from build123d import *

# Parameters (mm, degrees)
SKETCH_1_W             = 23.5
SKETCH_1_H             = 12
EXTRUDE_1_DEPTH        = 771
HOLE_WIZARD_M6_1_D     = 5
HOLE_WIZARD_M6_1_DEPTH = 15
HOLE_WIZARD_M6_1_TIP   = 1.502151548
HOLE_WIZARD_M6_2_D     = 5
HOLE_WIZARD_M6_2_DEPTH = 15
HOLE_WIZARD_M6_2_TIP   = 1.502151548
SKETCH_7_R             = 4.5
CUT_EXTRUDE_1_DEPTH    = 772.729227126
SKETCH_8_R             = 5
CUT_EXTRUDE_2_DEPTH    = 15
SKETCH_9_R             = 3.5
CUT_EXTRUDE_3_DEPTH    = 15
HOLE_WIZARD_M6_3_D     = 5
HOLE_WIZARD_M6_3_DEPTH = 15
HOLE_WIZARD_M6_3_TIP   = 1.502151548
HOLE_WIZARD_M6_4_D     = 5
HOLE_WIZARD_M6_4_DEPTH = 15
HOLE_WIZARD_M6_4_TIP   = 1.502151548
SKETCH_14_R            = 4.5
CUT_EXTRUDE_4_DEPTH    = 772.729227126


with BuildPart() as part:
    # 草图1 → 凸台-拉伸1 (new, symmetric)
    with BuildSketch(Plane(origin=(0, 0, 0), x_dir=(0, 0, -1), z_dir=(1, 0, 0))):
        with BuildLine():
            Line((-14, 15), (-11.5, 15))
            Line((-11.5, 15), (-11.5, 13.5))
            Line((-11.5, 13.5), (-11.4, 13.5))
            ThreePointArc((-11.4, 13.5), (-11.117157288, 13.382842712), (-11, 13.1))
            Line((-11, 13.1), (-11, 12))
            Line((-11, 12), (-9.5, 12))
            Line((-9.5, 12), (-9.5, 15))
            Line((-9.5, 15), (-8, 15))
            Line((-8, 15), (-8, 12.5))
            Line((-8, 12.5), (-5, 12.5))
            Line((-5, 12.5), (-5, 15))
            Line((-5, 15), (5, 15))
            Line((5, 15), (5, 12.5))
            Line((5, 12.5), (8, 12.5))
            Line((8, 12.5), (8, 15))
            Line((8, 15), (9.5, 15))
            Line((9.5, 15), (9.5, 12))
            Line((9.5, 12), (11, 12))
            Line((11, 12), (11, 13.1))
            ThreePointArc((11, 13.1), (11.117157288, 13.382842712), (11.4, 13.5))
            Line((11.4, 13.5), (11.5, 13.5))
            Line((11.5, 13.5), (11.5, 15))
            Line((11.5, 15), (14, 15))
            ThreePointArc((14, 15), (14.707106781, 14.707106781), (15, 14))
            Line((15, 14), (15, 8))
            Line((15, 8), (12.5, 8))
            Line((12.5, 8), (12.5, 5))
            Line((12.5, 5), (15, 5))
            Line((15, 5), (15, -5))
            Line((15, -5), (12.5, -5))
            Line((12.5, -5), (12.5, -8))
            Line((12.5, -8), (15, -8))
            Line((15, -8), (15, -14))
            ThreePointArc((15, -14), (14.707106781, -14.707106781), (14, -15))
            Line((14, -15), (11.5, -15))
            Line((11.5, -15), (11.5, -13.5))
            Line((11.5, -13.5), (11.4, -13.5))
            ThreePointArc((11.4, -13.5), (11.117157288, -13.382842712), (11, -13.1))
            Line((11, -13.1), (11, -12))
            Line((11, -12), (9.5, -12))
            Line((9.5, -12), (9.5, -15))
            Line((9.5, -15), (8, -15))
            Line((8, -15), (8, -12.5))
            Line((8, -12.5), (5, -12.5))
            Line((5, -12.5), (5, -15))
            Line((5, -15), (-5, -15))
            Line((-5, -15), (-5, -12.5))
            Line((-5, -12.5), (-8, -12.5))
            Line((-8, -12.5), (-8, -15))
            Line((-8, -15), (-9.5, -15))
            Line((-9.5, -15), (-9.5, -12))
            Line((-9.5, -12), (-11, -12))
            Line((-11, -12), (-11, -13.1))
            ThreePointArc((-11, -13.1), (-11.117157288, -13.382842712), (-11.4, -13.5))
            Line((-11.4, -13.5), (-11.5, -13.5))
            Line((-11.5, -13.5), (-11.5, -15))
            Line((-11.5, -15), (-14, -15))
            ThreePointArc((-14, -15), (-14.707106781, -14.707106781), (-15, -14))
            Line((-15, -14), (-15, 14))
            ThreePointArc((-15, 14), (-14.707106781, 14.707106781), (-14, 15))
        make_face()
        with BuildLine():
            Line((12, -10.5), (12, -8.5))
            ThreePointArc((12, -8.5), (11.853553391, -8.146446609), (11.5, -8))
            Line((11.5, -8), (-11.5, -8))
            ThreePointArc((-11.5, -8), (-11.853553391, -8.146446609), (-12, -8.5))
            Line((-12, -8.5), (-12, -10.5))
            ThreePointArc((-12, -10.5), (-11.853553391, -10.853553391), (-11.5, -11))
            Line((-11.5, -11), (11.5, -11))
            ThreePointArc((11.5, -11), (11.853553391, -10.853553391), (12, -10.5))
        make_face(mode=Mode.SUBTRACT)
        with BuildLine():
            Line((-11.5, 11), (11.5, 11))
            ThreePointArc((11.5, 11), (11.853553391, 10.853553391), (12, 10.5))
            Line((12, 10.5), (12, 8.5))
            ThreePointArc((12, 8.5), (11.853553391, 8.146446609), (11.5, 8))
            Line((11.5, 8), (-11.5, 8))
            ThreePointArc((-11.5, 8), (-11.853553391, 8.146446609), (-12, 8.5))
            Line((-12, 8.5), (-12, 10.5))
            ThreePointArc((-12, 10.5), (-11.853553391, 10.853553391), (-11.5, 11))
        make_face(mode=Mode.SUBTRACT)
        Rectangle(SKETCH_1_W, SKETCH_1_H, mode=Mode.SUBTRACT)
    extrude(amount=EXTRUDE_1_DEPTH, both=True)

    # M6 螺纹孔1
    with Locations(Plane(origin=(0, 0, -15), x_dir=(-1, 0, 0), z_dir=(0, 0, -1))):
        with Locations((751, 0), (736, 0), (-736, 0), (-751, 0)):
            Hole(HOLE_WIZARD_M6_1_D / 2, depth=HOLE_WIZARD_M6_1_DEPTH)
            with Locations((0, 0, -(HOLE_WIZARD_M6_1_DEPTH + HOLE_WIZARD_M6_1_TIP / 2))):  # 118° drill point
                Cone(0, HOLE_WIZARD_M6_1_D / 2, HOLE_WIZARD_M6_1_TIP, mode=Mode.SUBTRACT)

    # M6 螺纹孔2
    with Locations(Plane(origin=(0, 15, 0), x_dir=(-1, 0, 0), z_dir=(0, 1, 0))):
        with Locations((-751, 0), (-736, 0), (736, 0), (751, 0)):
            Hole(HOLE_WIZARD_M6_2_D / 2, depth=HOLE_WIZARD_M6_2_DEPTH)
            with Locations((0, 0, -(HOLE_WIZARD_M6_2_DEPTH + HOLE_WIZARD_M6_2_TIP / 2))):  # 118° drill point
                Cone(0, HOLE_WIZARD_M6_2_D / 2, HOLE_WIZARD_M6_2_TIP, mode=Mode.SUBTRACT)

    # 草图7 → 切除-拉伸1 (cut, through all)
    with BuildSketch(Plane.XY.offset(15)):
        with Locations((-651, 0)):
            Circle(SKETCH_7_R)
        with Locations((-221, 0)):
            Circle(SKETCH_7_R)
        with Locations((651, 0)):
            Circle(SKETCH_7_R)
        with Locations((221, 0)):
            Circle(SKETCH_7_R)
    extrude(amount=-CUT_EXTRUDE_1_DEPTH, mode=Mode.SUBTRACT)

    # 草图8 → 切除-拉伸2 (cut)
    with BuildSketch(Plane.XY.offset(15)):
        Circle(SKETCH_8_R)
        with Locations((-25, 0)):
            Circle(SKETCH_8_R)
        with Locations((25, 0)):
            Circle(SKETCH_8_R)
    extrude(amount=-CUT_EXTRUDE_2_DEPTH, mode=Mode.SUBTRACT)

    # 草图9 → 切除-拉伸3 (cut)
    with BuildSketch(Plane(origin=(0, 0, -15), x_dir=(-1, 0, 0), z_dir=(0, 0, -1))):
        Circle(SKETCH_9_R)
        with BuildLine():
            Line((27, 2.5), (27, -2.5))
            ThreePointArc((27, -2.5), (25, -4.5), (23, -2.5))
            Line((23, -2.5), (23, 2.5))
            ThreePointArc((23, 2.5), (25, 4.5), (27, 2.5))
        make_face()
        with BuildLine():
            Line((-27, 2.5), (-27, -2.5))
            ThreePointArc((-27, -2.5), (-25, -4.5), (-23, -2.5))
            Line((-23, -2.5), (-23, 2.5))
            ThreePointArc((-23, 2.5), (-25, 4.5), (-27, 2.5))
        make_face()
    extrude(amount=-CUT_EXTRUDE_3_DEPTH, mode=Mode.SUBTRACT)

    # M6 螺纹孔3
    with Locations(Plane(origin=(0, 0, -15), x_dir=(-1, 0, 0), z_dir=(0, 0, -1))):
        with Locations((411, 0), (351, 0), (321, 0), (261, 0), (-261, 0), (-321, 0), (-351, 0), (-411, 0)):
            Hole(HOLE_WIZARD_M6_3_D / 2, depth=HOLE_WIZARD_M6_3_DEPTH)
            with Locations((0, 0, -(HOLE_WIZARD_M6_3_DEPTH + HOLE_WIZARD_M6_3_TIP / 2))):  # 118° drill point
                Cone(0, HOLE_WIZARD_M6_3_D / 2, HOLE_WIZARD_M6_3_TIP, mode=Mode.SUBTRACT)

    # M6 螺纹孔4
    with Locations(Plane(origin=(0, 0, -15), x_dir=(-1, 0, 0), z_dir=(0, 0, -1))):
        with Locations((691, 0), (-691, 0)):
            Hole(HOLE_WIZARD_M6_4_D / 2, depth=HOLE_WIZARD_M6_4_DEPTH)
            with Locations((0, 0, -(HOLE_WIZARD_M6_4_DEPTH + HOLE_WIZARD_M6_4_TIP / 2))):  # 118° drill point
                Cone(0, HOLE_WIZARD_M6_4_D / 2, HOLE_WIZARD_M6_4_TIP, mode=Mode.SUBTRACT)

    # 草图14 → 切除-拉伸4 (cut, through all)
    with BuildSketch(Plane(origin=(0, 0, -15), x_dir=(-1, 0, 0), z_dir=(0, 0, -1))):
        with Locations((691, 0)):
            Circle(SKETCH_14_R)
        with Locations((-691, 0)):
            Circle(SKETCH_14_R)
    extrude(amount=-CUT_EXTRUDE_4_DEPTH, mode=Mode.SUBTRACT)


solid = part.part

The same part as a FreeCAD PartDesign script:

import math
import FreeCAD as App
import Part
import Sketcher


def add_polygon(sketch, points):
    """Adds a closed chain of lines whose ends are joined by coincident constraints."""
    first, n = sketch.GeometryCount, len(points)
    for a, b in zip(points, points[1:] + points[:1]):
        sketch.addGeometry(Part.LineSegment(App.Vector(*a, 0), App.Vector(*b, 0)), False)
    for i in range(n):
        sketch.addConstraint(Sketcher.Constraint("Coincident", first + i, 2, first + (i + 1) % n, 1))

doc = App.newDocument("Part")
body = doc.addObject("PartDesign::Body", "Body")

sketch1 = doc.addObject("Sketcher::SketchObject", "Sketch")
body.addObject(sketch1)
sketch1.AttachmentSupport = (doc.YZ_Plane, [""])
sketch1.MapMode = "FlatFace"
sketch1.addGeometry(Part.LineSegment(App.Vector(15, 11.5, 0), App.Vector(15, 14, 0)), False)
sketch1.addGeometry(Part.ArcOfCircle(Part.Circle(App.Vector(14, 14, 0), App.Vector(0, 0, 1), 1), math.radians(0), math.radians(90)), False)
sketch1.addGeometry(Part.LineSegment(App.Vector(14, 15, 0), App.Vector(-14, 15, 0)), False)
sketch1.addGeometry(Part.ArcOfCircle(Part.Circle(App.Vector(-14, 14, 0), App.Vector(0, 0, 1), 1), math.radians(90), math.radians(180)), False)
sketch1.addGeometry(Part.LineSegment(App.Vector(-15, 14, 0), App.Vector(-15, 11.5, 0)), False)
sketch1.addGeometry(Part.LineSegment(App.Vector(-15, 11.5, 0), App.Vector(-13.5, 11.5, 0)), False)
sketch1.addGeometry(Part.LineSegment(App.Vector(-13.5, 11.5, 0), App.Vector(-13.5, 11.4, 0)), False)
sketch1.addGeometry(Part.ArcOfCircle(Part.Circle(App.Vector(-13.1, 11.4, 0), App.Vector(0, 0, 1), 0.4), math.radians(-180), math.radians(-90)), False)
sketch1.addGeometry(Part.LineSegment(App.Vector(-13.1, 11, 0), App.Vector(-12, 11, 0)), False)
sketch1.addGeometry(Part.LineSegment(App.Vector(-12, 11, 0), App.Vector(-12, 9.5, 0)), False)
sketch1.addGeometry(Part.LineSegment(App.Vector(-12, 9.5, 0), App.Vector(-15, 9.5, 0)), False)
sketch1.addGeometry(Part.LineSegment(App.Vector(-15, 9.5, 0), App.Vector(-15, 8, 0)), False)
sketch1.addGeometry(Part.LineSegment(App.Vector(-15, 8, 0), App.Vector(-12.5, 8, 0)), False)
sketch1.addGeometry(Part.LineSegment(App.Vector(-12.5, 8, 0), App.Vector(-12.5, 5, 0)), False)
sketch1.addGeometry(Part.LineSegment(App.Vector(-12.5, 5, 0), App.Vector(-15, 5, 0)), False)
sketch1.addGeometry(Part.LineSegment(App.Vector(-15, 5, 0), App.Vector(-15, -5, 0)), False)
sketch1.addGeometry(Part.LineSegment(App.Vector(-15, -5, 0), App.Vector(-12.5, -5, 0)), False)
sketch1.addGeometry(Part.LineSegment(App.Vector(-12.5, -5, 0), App.Vector(-12.5, -8, 0)), False)
sketch1.addGeometry(Part.LineSegment(App.Vector(-12.5, -8, 0), App.Vector(-15, -8, 0)), False)
sketch1.addGeometry(Part.LineSegment(App.Vector(-15, -8, 0), App.Vector(-15, -9.5, 0)), False)
sketch1.addGeometry(Part.LineSegment(App.Vector(-15, -9.5, 0), App.Vector(-12, -9.5, 0)), False)
sketch1.addGeometry(Part.LineSegment(App.Vector(-12, -9.5, 0), App.Vector(-12, -11, 0)), False)
sketch1.addGeometry(Part.LineSegment(App.Vector(-12, -11, 0), App.Vector(-13.1, -11, 0)), False)
sketch1.addGeometry(Part.ArcOfCircle(Part.Circle(App.Vector(-13.1, -11.4, 0), App.Vector(0, 0, 1), 0.4), math.radians(90), math.radians(180)), False)
sketch1.addGeometry(Part.LineSegment(App.Vector(-13.5, -11.4, 0), App.Vector(-13.5, -11.5, 0)), False)
sketch1.addGeometry(Part.LineSegment(App.Vector(-13.5, -11.5, 0), App.Vector(-15, -11.5, 0)), False)
sketch1.addGeometry(Part.LineSegment(App.Vector(-15, -11.5, 0), App.Vector(-15, -14, 0)), False)
sketch1.addGeometry(Part.ArcOfCircle(Part.Circle(App.Vector(-14, -14, 0), App.Vector(0, 0, 1), 1), math.radians(-180), math.radians(-90)), False)
sketch1.addGeometry(Part.LineSegment(App.Vector(-14, -15, 0), App.Vector(-8, -15, 0)), False)
sketch1.addGeometry(Part.LineSegment(App.Vector(-8, -15, 0), App.Vector(-8, -12.5, 0)), False)
sketch1.addGeometry(Part.LineSegment(App.Vector(-8, -12.5, 0), App.Vector(-5, -12.5, 0)), False)
sketch1.addGeometry(Part.LineSegment(App.Vector(-5, -12.5, 0), App.Vector(-5, -15, 0)), False)
sketch1.addGeometry(Part.LineSegment(App.Vector(-5, -15, 0), App.Vector(5, -15, 0)), False)
sketch1.addGeometry(Part.LineSegment(App.Vector(5, -15, 0), App.Vector(5, -12.5, 0)), False)
sketch1.addGeometry(Part.LineSegment(App.Vector(5, -12.5, 0), App.Vector(8, -12.5, 0)), False)
sketch1.addGeometry(Part.LineSegment(App.Vector(8, -12.5, 0), App.Vector(8, -15, 0)), False)
sketch1.addGeometry(Part.LineSegment(App.Vector(8, -15, 0), App.Vector(14, -15, 0)), False)
sketch1.addGeometry(Part.ArcOfCircle(Part.Circle(App.Vector(14, -14, 0), App.Vector(0, 0, 1), 1), math.radians(-90), math.radians(0)), False)
sketch1.addGeometry(Part.LineSegment(App.Vector(15, -14, 0), App.Vector(15, -11.5, 0)), False)
sketch1.addGeometry(Part.LineSegment(App.Vector(15, -11.5, 0), App.Vector(13.5, -11.5, 0)), False)
sketch1.addGeometry(Part.LineSegment(App.Vector(13.5, -11.5, 0), App.Vector(13.5, -11.4, 0)), False)
sketch1.addGeometry(Part.ArcOfCircle(Part.Circle(App.Vector(13.1, -11.4, 0), App.Vector(0, 0, 1), 0.4), math.radians(0), math.radians(90)), False)
sketch1.addGeometry(Part.LineSegment(App.Vector(13.1, -11, 0), App.Vector(12, -11, 0)), False)
sketch1.addGeometry(Part.LineSegment(App.Vector(12, -11, 0), App.Vector(12, -9.5, 0)), False)
sketch1.addGeometry(Part.LineSegment(App.Vector(12, -9.5, 0), App.Vector(15, -9.5, 0)), False)
sketch1.addGeometry(Part.LineSegment(App.Vector(15, -9.5, 0), App.Vector(15, -8, 0)), False)
sketch1.addGeometry(Part.LineSegment(App.Vector(15, -8, 0), App.Vector(12.5, -8, 0)), False)
sketch1.addGeometry(Part.LineSegment(App.Vector(12.5, -8, 0), App.Vector(12.5, -5, 0)), False)
sketch1.addGeometry(Part.LineSegment(App.Vector(12.5, -5, 0), App.Vector(15, -5, 0)), False)
sketch1.addGeometry(Part.LineSegment(App.Vector(15, -5, 0), App.Vector(15, 5, 0)), False)
sketch1.addGeometry(Part.LineSegment(App.Vector(15, 5, 0), App.Vector(12.5, 5, 0)), False)
sketch1.addGeometry(Part.LineSegment(App.Vector(12.5, 5, 0), App.Vector(12.5, 8, 0)), False)
sketch1.addGeometry(Part.LineSegment(App.Vector(12.5, 8, 0), App.Vector(15, 8, 0)), False)
sketch1.addGeometry(Part.LineSegment(App.Vector(15, 8, 0), App.Vector(15, 9.5, 0)), False)
sketch1.addGeometry(Part.LineSegment(App.Vector(15, 9.5, 0), App.Vector(12, 9.5, 0)), False)
sketch1.addGeometry(Part.LineSegment(App.Vector(12, 9.5, 0), App.Vector(12, 11, 0)), False)
sketch1.addGeometry(Part.LineSegment(App.Vector(12, 11, 0), App.Vector(13.1, 11, 0)), False)
sketch1.addGeometry(Part.ArcOfCircle(Part.Circle(App.Vector(13.1, 11.4, 0), App.Vector(0, 0, 1), 0.4), math.radians(-90), math.radians(0)), False)
sketch1.addGeometry(Part.LineSegment(App.Vector(13.5, 11.4, 0), App.Vector(13.5, 11.5, 0)), False)
sketch1.addGeometry(Part.LineSegment(App.Vector(13.5, 11.5, 0), App.Vector(15, 11.5, 0)), False)
sketch1.addGeometry(Part.ArcOfCircle(Part.Circle(App.Vector(-10.5, -11.5, 0), App.Vector(0, 0, 1), 0.5), math.radians(180), math.radians(270)), False)
sketch1.addGeometry(Part.LineSegment(App.Vector(-11, -11.5, 0), App.Vector(-11, 11.5, 0)), False)
sketch1.addGeometry(Part.ArcOfCircle(Part.Circle(App.Vector(-10.5, 11.5, 0), App.Vector(0, 0, 1), 0.5), math.radians(90), math.radians(180)), False)
sketch1.addGeometry(Part.LineSegment(App.Vector(-10.5, 12, 0), App.Vector(-8.5, 12, 0)), False)
sketch1.addGeometry(Part.ArcOfCircle(Part.Circle(App.Vector(-8.5, 11.5, 0), App.Vector(0, 0, 1), 0.5), math.radians(0), math.radians(90)), False)
sketch1.addGeometry(Part.LineSegment(App.Vector(-8, 11.5, 0), App.Vector(-8, -11.5, 0)), False)
sketch1.addGeometry(Part.ArcOfCircle(Part.Circle(App.Vector(-8.5, -11.5, 0), App.Vector(0, 0, 1), 0.5), math.radians(-90), math.radians(0)), False)
sketch1.addGeometry(Part.LineSegment(App.Vector(-8.5, -12, 0), App.Vector(-10.5, -12, 0)), False)
add_polygon(sketch1, [(-6, 11.75), (6, 11.75), (6, -11.75), (-6, -11.75)])
sketch1.addGeometry(Part.LineSegment(App.Vector(11, 11.5, 0), App.Vector(11, -11.5, 0)), False)
sketch1.addGeometry(Part.ArcOfCircle(Part.Circle(App.Vector(10.5, -11.5, 0), App.Vector(0, 0, 1), 0.5), math.radians(-90), math.radians(0)), False)
sketch1.addGeometry(Part.LineSegment(App.Vector(10.5, -12, 0), App.Vector(8.5, -12, 0)), False)
sketch1.addGeometry(Part.ArcOfCircle(Part.Circle(App.Vector(8.5, -11.5, 0), App.Vector(0, 0, 1), 0.5), math.radians(180), math.radians(270)), False)
sketch1.addGeometry(Part.LineSegment(App.Vector(8, -11.5, 0), App.Vector(8, 11.5, 0)), False)
sketch1.addGeometry(Part.ArcOfCircle(Part.Circle(App.Vector(8.5, 11.5, 0), App.Vector(0, 0, 1), 0.5), math.radians(90), math.radians(180)), False)
sketch1.addGeometry(Part.LineSegment(App.Vector(8.5, 12, 0), App.Vector(10.5, 12, 0)), False)
sketch1.addGeometry(Part.ArcOfCircle(Part.Circle(App.Vector(10.5, 11.5, 0), App.Vector(0, 0, 1), 0.5), math.radians(0), math.radians(90)), False)
sketch1.addConstraint([
    Sketcher.Constraint("Tangent", 0, 2, 1, 1),
    Sketcher.Constraint("Tangent", 1, 2, 2, 1),
    Sketcher.Constraint("Tangent", 2, 2, 3, 1),
    Sketcher.Constraint("Tangent", 3, 2, 4, 1),
    Sketcher.Constraint("Coincident", 4, 2, 5, 1),
    Sketcher.Constraint("Coincident", 5, 2, 6, 1),
    Sketcher.Constraint("Tangent", 6, 2, 7, 1),
    Sketcher.Constraint("Tangent", 7, 2, 8, 1),
    Sketcher.Constraint("Coincident", 8, 2, 9, 1),
    Sketcher.Constraint("Coincident", 9, 2, 10, 1),
    Sketcher.Constraint("Coincident", 10, 2, 11, 1),
    Sketcher.Constraint("Coincident", 11, 2, 12, 1),
    Sketcher.Constraint("Coincident", 12, 2, 13, 1),
    Sketcher.Constraint("Coincident", 13, 2, 14, 1),
    Sketcher.Constraint("Coincident", 14, 2, 15, 1),
    Sketcher.Constraint("Coincident", 15, 2, 16, 1),
    Sketcher.Constraint("Coincident", 16, 2, 17, 1),
    Sketcher.Constraint("Coincident", 17, 2, 18, 1),
    Sketcher.Constraint("Coincident", 18, 2, 19, 1),
    Sketcher.Constraint("Coincident", 19, 2, 20, 1),
    Sketcher.Constraint("Coincident", 20, 2, 21, 1),
    Sketcher.Constraint("Coincident", 21, 2, 22, 1),
    Sketcher.Constraint("Tangent", 22, 2, 23, 1),
    Sketcher.Constraint("Tangent", 23, 2, 24, 1),
    Sketcher.Constraint("Coincident", 24, 2, 25, 1),
    Sketcher.Constraint("Coincident", 25, 2, 26, 1),
    Sketcher.Constraint("Tangent", 26, 2, 27, 1),
    Sketcher.Constraint("Tangent", 27, 2, 28, 1),
    Sketcher.Constraint("Coincident", 28, 2, 29, 1),
    Sketcher.Constraint("Coincident", 29, 2, 30, 1),
    Sketcher.Constraint("Coincident", 30, 2, 31, 1),
    Sketcher.Constraint("Coincident", 31, 2, 32, 1),
    Sketcher.Constraint("Coincident", 32, 2, 33, 1),
    Sketcher.Constraint("Coincident", 33, 2, 34, 1),
    Sketcher.Constraint("Coincident", 34, 2, 35, 1),
    Sketcher.Constraint("Coincident", 35, 2, 36, 1),
    Sketcher.Constraint("Tangent", 36, 2, 37, 1),
    Sketcher.Constraint("Tangent", 37, 2, 38, 1),
    Sketcher.Constraint("Coincident", 38, 2, 39, 1),
    Sketcher.Constraint("Coincident", 39, 2, 40, 1),
    Sketcher.Constraint("Tangent", 40, 2, 41, 1),
    Sketcher.Constraint("Tangent", 41, 2, 42, 1),
    Sketcher.Constraint("Coincident", 42, 2, 43, 1),
    Sketcher.Constraint("Coincident", 43, 2, 44, 1),
    Sketcher.Constraint("Coincident", 44, 2, 45, 1),
    Sketcher.Constraint("Coincident", 45, 2, 46, 1),
    Sketcher.Constraint("Coincident", 46, 2, 47, 1),
    Sketcher.Constraint("Coincident", 47, 2, 48, 1),
    Sketcher.Constraint("Coincident", 48, 2, 49, 1),
    Sketcher.Constraint("Coincident", 49, 2, 50, 1),
    Sketcher.Constraint("Coincident", 50, 2, 51, 1),
    Sketcher.Constraint("Coincident", 51, 2, 52, 1),
    Sketcher.Constraint("Coincident", 52, 2, 53, 1),
    Sketcher.Constraint("Coincident", 53, 2, 54, 1),
    Sketcher.Constraint("Coincident", 54, 2, 55, 1),
    Sketcher.Constraint("Coincident", 55, 2, 56, 1),
    Sketcher.Constraint("Tangent", 56, 2, 57, 1),
    Sketcher.Constraint("Tangent", 57, 2, 58, 1),
    Sketcher.Constraint("Coincident", 58, 2, 59, 1),
    Sketcher.Constraint("Coincident", 59, 2, 0, 1),
    Sketcher.Constraint("Tangent", 60, 1, 61, 1),
    Sketcher.Constraint("Tangent", 61, 2, 62, 2),
    Sketcher.Constraint("Tangent", 62, 1, 63, 1),
    Sketcher.Constraint("Tangent", 63, 2, 64, 2),
    Sketcher.Constraint("Tangent", 64, 1, 65, 1),
    Sketcher.Constraint("Tangent", 65, 2, 66, 2),
    Sketcher.Constraint("Tangent", 66, 1, 67, 1),
    Sketcher.Constraint("Tangent", 67, 2, 60, 2),
    Sketcher.Constraint("Tangent", 72, 2, 73, 2),
    Sketcher.Constraint("Tangent", 73, 1, 74, 1),
    Sketcher.Constraint("Tangent", 74, 2, 75, 2),
    Sketcher.Constraint("Tangent", 75, 1, 76, 1),
    Sketcher.Constraint("Tangent", 76, 2, 77, 2),
    Sketcher.Constraint("Tangent", 77, 1, 78, 1),
    Sketcher.Constraint("Tangent", 78, 2, 79, 2),
    Sketcher.Constraint("Tangent", 79, 1, 72, 1),
    Sketcher.Constraint("Vertical", 0),
    Sketcher.Constraint("Horizontal", 2),
    Sketcher.Constraint("Vertical", 4),
    Sketcher.Constraint("Horizontal", 5),
    Sketcher.Constraint("Vertical", 6),
    Sketcher.Constraint("Horizontal", 8),
    Sketcher.Constraint("Vertical", 9),
    Sketcher.Constraint("Horizontal", 10),
    Sketcher.Constraint("Vertical", 11),
    Sketcher.Constraint("Horizontal", 12),
    Sketcher.Constraint("Vertical", 13),
    Sketcher.Constraint("Horizontal", 14),
    Sketcher.Constraint("Vertical", 15),
    Sketcher.Constraint("Horizontal", 16),
    Sketcher.Constraint("Vertical", 17),
    Sketcher.Constraint("Horizontal", 18),
    Sketcher.Constraint("Vertical", 19),
    Sketcher.Constraint("Horizontal", 20),
    Sketcher.Constraint("Vertical", 21),
    Sketcher.Constraint("Horizontal", 22),
    Sketcher.Constraint("Vertical", 24),
    Sketcher.Constraint("Horizontal", 25),
    Sketcher.Constraint("Vertical", 26),
    Sketcher.Constraint("Horizontal", 28),
    Sketcher.Constraint("Vertical", 29),
    Sketcher.Constraint("Horizontal", 30),
    Sketcher.Constraint("Vertical", 31),
    Sketcher.Constraint("Horizontal", 32),
    Sketcher.Constraint("Vertical", 33),
    Sketcher.Constraint("Horizontal", 34),
    Sketcher.Constraint("Vertical", 35),
    Sketcher.Constraint("Horizontal", 36),
    Sketcher.Constraint("Vertical", 38),
    Sketcher.Constraint("Horizontal", 39),
    Sketcher.Constraint("Vertical", 40),
    Sketcher.Constraint("Horizontal", 42),
    Sketcher.Constraint("Vertical", 43),
    Sketcher.Constraint("Horizontal", 44),
    Sketcher.Constraint("Vertical", 45),
    Sketcher.Constraint("Horizontal", 46),
    Sketcher.Constraint("Vertical", 47),
    Sketcher.Constraint("Horizontal", 48),
    Sketcher.Constraint("Vertical", 49),
    Sketcher.Constraint("Horizontal", 50),
    Sketcher.Constraint("Vertical", 51),
    Sketcher.Constraint("Horizontal", 52),
    Sketcher.Constraint("Vertical", 53),
    Sketcher.Constraint("Horizontal", 54),
    Sketcher.Constraint("Vertical", 55),
    Sketcher.Constraint("Horizontal", 56),
    Sketcher.Constraint("Vertical", 58),
    Sketcher.Constraint("Horizontal", 59),
    Sketcher.Constraint("Vertical", 61),
    Sketcher.Constraint("Horizontal", 63),
    Sketcher.Constraint("Vertical", 65),
    Sketcher.Constraint("Horizontal", 67),
    Sketcher.Constraint("Horizontal", 68),
    Sketcher.Constraint("Vertical", 69),
    Sketcher.Constraint("Horizontal", 70),
    Sketcher.Constraint("Vertical", 71),
    Sketcher.Constraint("Vertical", 72),
    Sketcher.Constraint("Horizontal", 74),
    Sketcher.Constraint("Vertical", 76),
    Sketcher.Constraint("Horizontal", 78),
    Sketcher.Constraint("Equal", 1, 3),
    Sketcher.Constraint("Equal", 7, 23),
    Sketcher.Constraint("Equal", 3, 27),
    Sketcher.Constraint("Equal", 27, 37),
    Sketcher.Constraint("Equal", 23, 41),
    Sketcher.Constraint("Equal", 41, 57),
    Sketcher.Constraint("Equal", 60, 62),
    Sketcher.Constraint("Equal", 62, 64),
    Sketcher.Constraint("Equal", 64, 66),
    Sketcher.Constraint("Equal", 66, 73),
    Sketcher.Constraint("Equal", 73, 75),
    Sketcher.Constraint("Equal", 75, 77),
    Sketcher.Constraint("Equal", 77, 79),
    Sketcher.Constraint("Symmetric", 1, 3, 27, 3, -1, 1),
    Sketcher.Constraint("Symmetric", 3, 3, 37, 3, -1, 1),
    Sketcher.Constraint("Symmetric", 7, 3, 41, 3, -1, 1),
    Sketcher.Constraint("Symmetric", 23, 3, 57, 3, -1, 1),
    Sketcher.Constraint("Symmetric", 62, 3, 73, 3, -1, 1),
    Sketcher.Constraint("Symmetric", 66, 3, 77, 3, -1, 1),
    Sketcher.Constraint("Symmetric", 9, 2, 43, 2, -1, 1),
    Sketcher.Constraint("Symmetric", 11, 2, 45, 2, -1, 1),
    Sketcher.Constraint("Symmetric", 13, 2, 47, 2, -1, 1),
    Sketcher.Constraint("Symmetric", 15, 2, 49, 2, -1, 1),
    Sketcher.Constraint("Symmetric", 17, 2, 51, 2, -1, 1),
    Sketcher.Constraint("Symmetric", 19, 2, 53, 2, -1, 1),
    Sketcher.Constraint("Symmetric", 68, 2, 70, 2, -1, 1),
    Sketcher.Constraint("Symmetric", 23, 3, 41, 3, -2),
    Sketcher.Constraint("Symmetric", 30, 2, 33, 2, -2),
    Sketcher.Constraint("Symmetric", 25, 2, 38, 2, -2),
    Sketcher.Constraint("Symmetric", 20, 2, 43, 2, -2),
    Sketcher.Constraint("Symmetric", 18, 2, 45, 2, -2),
    Sketcher.Constraint("Symmetric", 16, 2, 47, 2, -2),
    Sketcher.Constraint("Horizontal", 66, 3, 73, 3),
    Sketcher.Constraint("Horizontal", 79, 3, 4, 2),
    Sketcher.Constraint("Horizontal", 75, 3, 24, 2),
    Sketcher.Constraint("Horizontal", 28, 2, 31, 2),
    Sketcher.Constraint("Horizontal", 5, 2, 58, 2),
    Sketcher.Constraint("Vertical", 4, 2, 10, 2),
    Sketcher.Constraint("Vertical", 11, 2, 14, 2),
    Sketcher.Constraint("Vertical", 43, 2, 54, 2),
    Sketcher.Constraint("Vertical", 29, 2, 64, 1),
    Sketcher.Constraint("Vertical", 35, 2, 75, 1),
    Sketcher.Constraint("Equal", 20, 30),
    Sketcher.Constraint("Equal", 52, 0),
    Sketcher.Constraint("Equal", 59, 9),
    Sketcher.Constraint("Equal", 9, 11),
    Sketcher.Constraint("Equal", 54, 13),
    Sketcher.Constraint("Equal", 32, 15),
    Sketcher.Constraint("Equal", 26, 29),
    Sketcher.Constraint("Radius", 1, 1.0),
    Sketcher.Constraint("Radius", 7, 0.4),
    Sketcher.Constraint("Radius", 60, 0.5),
    Sketcher.Constraint("DistanceX", 2, 2, 2, 1, 28.0),
    Sketcher.Constraint("DistanceX", 10, 2, 10, 1, 3.0),
    Sketcher.Constraint("DistanceX", 28, 1, 28, 2, 6.0),
    Sketcher.Constraint("DistanceX", 63, 1, 63, 2, 2.0),
    Sketcher.Constraint("DistanceX", 68, 1, 68, 2, 12.0),
    Sketcher.Constraint("DistanceY", 61, 1, 61, 2, 23.0),
    Sketcher.Constraint("DistanceX", 5, 1, 5, 2, 1.5),
    Sketcher.Constraint("DistanceX", 12, 1, 12, 2, 2.5),
    Sketcher.Constraint("DistanceY", 69, 2, 69, 1, 23.5),
])
pad1 = doc.addObject("PartDesign::Pad", "Pad")
body.addObject(pad1)
pad1.Profile = sketch1
pad1.Length = 1542
pad1.Midplane = True

sketch2 = doc.addObject("Sketcher::SketchObject", "Sketch001")
body.addObject(sketch2)
sketch2.AttachmentSupport = (doc.XY_Plane, [""])
sketch2.MapMode = "FlatFace"
sketch2.AttachmentOffset = App.Placement(App.Vector(0, 0, -15), App.Rotation())
sketch2.addGeometry([
    Part.Circle(App.Vector(-751, 0, 0), App.Vector(0, 0, 1), 2.5),
    Part.Circle(App.Vector(-736, 0, 0), App.Vector(0, 0, 1), 2.5),
    Part.Circle(App.Vector(736, 0, 0), App.Vector(0, 0, 1), 2.5),
    Part.Circle(App.Vector(751, 0, 0), App.Vector(0, 0, 1), 2.5),
], False)
sketch2.addConstraint([
    Sketcher.Constraint("Equal", 0, 1),
    Sketcher.Constraint("Equal", 1, 2),
    Sketcher.Constraint("Equal", 2, 3),
    Sketcher.Constraint("Symmetric", 1, 3, 2, 3, -1, 1),
    Sketcher.Constraint("Symmetric", 0, 3, 3, 3, -1, 1),
    Sketcher.Constraint("PointOnObject", 0, 3, -1),
    Sketcher.Constraint("PointOnObject", 1, 3, -1),
    Sketcher.Constraint("Diameter", 0, 5.0),
    Sketcher.Constraint("DistanceX", 0, 3, -1, 1, 751.0),
    Sketcher.Constraint("DistanceX", 1, 3, -1, 1, 736.0),
])
doc.recompute()
hole = doc.addObject("PartDesign::Hole", "Hole")
body.addObject(hole)
hole.Profile = sketch2
hole.ThreadType = "None"
hole.Diameter = 5
hole.DepthType = "Dimension"
hole.Depth = 15
hole.DrillPoint = "Angled"
hole.DrillPointAngle = 118
hole.Reversed = True

sketch3 = doc.addObject("Sketcher::SketchObject", "Sketch002")
body.addObject(sketch3)
sketch3.AttachmentSupport = (doc.XZ_Plane, [""])
sketch3.MapMode = "FlatFace"
sketch3.AttachmentOffset = App.Placement(App.Vector(0, 0, -15), App.Rotation())
sketch3.addGeometry([
    Part.Circle(App.Vector(751, 0, 0), App.Vector(0, 0, 1), 2.5),
    Part.Circle(App.Vector(736, 0, 0), App.Vector(0, 0, 1), 2.5),
    Part.Circle(App.Vector(-736, 0, 0), App.Vector(0, 0, 1), 2.5),
    Part.Circle(App.Vector(-751, 0, 0), App.Vector(0, 0, 1), 2.5),
], False)
sketch3.addConstraint([
    Sketcher.Constraint("Equal", 0, 1),
    Sketcher.Constraint("Equal", 1, 2),
    Sketcher.Constraint("Equal", 2, 3),
    Sketcher.Constraint("Symmetric", 1, 3, 2, 3, -1, 1),
    Sketcher.Constraint("Symmetric", 0, 3, 3, 3, -1, 1),
    Sketcher.Constraint("PointOnObject", 0, 3, -1),
    Sketcher.Constraint("PointOnObject", 1, 3, -1),
    Sketcher.Constraint("Diameter", 0, 5.0),
    Sketcher.Constraint("DistanceX", -1, 1, 0, 3, 751.0),
    Sketcher.Constraint("DistanceX", -1, 1, 1, 3, 736.0),
])
doc.recompute()
hole2 = doc.addObject("PartDesign::Hole", "Hole001")
body.addObject(hole2)
hole2.Profile = sketch3
hole2.ThreadType = "None"
hole2.Diameter = 5
hole2.DepthType = "Dimension"
hole2.Depth = 15
hole2.DrillPoint = "Angled"
hole2.DrillPointAngle = 118
hole2.Reversed = True

sketch4 = doc.addObject("Sketcher::SketchObject", "Sketch003")
body.addObject(sketch4)
sketch4.AttachmentSupport = (doc.XY_Plane, [""])
sketch4.MapMode = "FlatFace"
sketch4.AttachmentOffset = App.Placement(App.Vector(0, 0, 15), App.Rotation())
sketch4.addGeometry([
    Part.Circle(App.Vector(-651, 0, 0), App.Vector(0, 0, 1), 4.5),
    Part.Circle(App.Vector(-221, 0, 0), App.Vector(0, 0, 1), 4.5),
    Part.Circle(App.Vector(651, 0, 0), App.Vector(0, 0, 1), 4.5),
    Part.Circle(App.Vector(221, 0, 0), App.Vector(0, 0, 1), 4.5),
], False)
sketch4.addConstraint([
    Sketcher.Constraint("Equal", 0, 1),
    Sketcher.Constraint("Equal", 1, 2),
    Sketcher.Constraint("Equal", 2, 3),
    Sketcher.Constraint("Symmetric", 0, 3, 2, 3, -1, 1),
    Sketcher.Constraint("Symmetric", 1, 3, 3, 3, -1, 1),
    Sketcher.Constraint("PointOnObject", 0, 3, -1),
    Sketcher.Constraint("PointOnObject", 1, 3, -1),
    Sketcher.Constraint("Diameter", 0, 9.0),
    Sketcher.Constraint("DistanceX", 0, 3, -1, 1, 651.0),
    Sketcher.Constraint("DistanceX", 1, 3, -1, 1, 221.0),
])
pocket1 = doc.addObject("PartDesign::Pocket", "Pocket")
body.addObject(pocket1)
pocket1.Profile = sketch4
pocket1.Type = "ThroughAll"

sketch5 = doc.addObject("Sketcher::SketchObject", "Sketch004")
body.addObject(sketch5)
sketch5.AttachmentSupport = (doc.XY_Plane, [""])
sketch5.MapMode = "FlatFace"
sketch5.AttachmentOffset = App.Placement(App.Vector(0, 0, 15), App.Rotation())
sketch5.addGeometry([
    Part.Circle(App.Vector(0, 0, 0), App.Vector(0, 0, 1), 5),
    Part.Circle(App.Vector(-25, 0, 0), App.Vector(0, 0, 1), 5),
    Part.Circle(App.Vector(25, 0, 0), App.Vector(0, 0, 1), 5),
], False)
sketch5.addConstraint([
    Sketcher.Constraint("Coincident", 0, 3, -1, 1),
    Sketcher.Constraint("Equal", 0, 1),
    Sketcher.Constraint("Equal", 1, 2),
    Sketcher.Constraint("Symmetric", 1, 3, 2, 3, -1, 1),
    Sketcher.Constraint("PointOnObject", 1, 3, -1),
    Sketcher.Constraint("Diameter", 0, 10.0),
    Sketcher.Constraint("DistanceX", 1, 3, -1, 1, 25.0),
])
pocket2 = doc.addObject("PartDesign::Pocket", "Pocket001")
body.addObject(pocket2)
pocket2.Profile = sketch5
pocket2.Length = 15

sketch6 = doc.addObject("Sketcher::SketchObject", "Sketch005")
body.addObject(sketch6)
sketch6.AttachmentSupport = (doc.XY_Plane, [""])
sketch6.MapMode = "FlatFace"
sketch6.AttachmentOffset = App.Placement(App.Vector(0, 0, -15), App.Rotation())
sketch6.addGeometry([
    Part.Circle(App.Vector(0, 0, 0), App.Vector(0, 0, 1), 3.5),
    Part.LineSegment(App.Vector(-27, -2.5, 0), App.Vector(-27, 2.5, 0)),
    Part.ArcOfCircle(Part.Circle(App.Vector(-25, 2.5, 0), App.Vector(0, 0, 1), 2), math.radians(0), math.radians(180)),
    Part.LineSegment(App.Vector(-23, 2.5, 0), App.Vector(-23, -2.5, 0)),
    Part.ArcOfCircle(Part.Circle(App.Vector(-25, -2.5, 0), App.Vector(0, 0, 1), 2), math.radians(180), math.radians(360)),
    Part.LineSegment(App.Vector(27, 2.5, 0), App.Vector(27, -2.5, 0)),
    Part.ArcOfCircle(Part.Circle(App.Vector(25, -2.5, 0), App.Vector(0, 0, 1), 2), math.radians(180), math.radians(360)),
    Part.LineSegment(App.Vector(23, -2.5, 0), App.Vector(23, 2.5, 0)),
    Part.ArcOfCircle(Part.Circle(App.Vector(25, 2.5, 0), App.Vector(0, 0, 1), 2), math.radians(0), math.radians(180)),
], False)
sketch6.addConstraint([
    Sketcher.Constraint("Tangent", 1, 2, 2, 2),
    Sketcher.Constraint("Tangent", 2, 1, 3, 1),
    Sketcher.Constraint("Tangent", 3, 2, 4, 2),
    Sketcher.Constraint("Tangent", 4, 1, 1, 1),
    Sketcher.Constraint("Tangent", 5, 2, 6, 2),
    Sketcher.Constraint("Tangent", 6, 1, 7, 1),
    Sketcher.Constraint("Tangent", 7, 2, 8, 2),
    Sketcher.Constraint("Tangent", 8, 1, 5, 1),
    Sketcher.Constraint("Vertical", 1),
    Sketcher.Constraint("Vertical", 3),
    Sketcher.Constraint("Vertical", 5),
    Sketcher.Constraint("Vertical", 7),
    Sketcher.Constraint("Coincident", 0, 3, -1, 1),
    Sketcher.Constraint("Equal", 4, 6),
    Sketcher.Constraint("Symmetric", 2, 3, 6, 3, -1, 1),
    Sketcher.Constraint("Horizontal", 4, 3, 6, 3),
    Sketcher.Constraint("Horizontal", 2, 3, 8, 3),
    Sketcher.Constraint("Diameter", 0, 7.0),
    Sketcher.Constraint("Radius", 2, 2.0),
    Sketcher.Constraint("DistanceY", 1, 1, 1, 2, 5.0),
    Sketcher.Constraint("DistanceX", 2, 3, -1, 1, 25.0),
])
pocket3 = doc.addObject("PartDesign::Pocket", "Pocket002")
body.addObject(pocket3)
pocket3.Profile = sketch6
pocket3.Length = 15
pocket3.Reversed = True

sketch7 = doc.addObject("Sketcher::SketchObject", "Sketch006")
body.addObject(sketch7)
sketch7.AttachmentSupport = (doc.XY_Plane, [""])
sketch7.MapMode = "FlatFace"
sketch7.AttachmentOffset = App.Placement(App.Vector(0, 0, -15), App.Rotation())
sketch7.addGeometry([
    Part.Circle(App.Vector(-411, 0, 0), App.Vector(0, 0, 1), 2.5),
    Part.Circle(App.Vector(-351, 0, 0), App.Vector(0, 0, 1), 2.5),
    Part.Circle(App.Vector(-321, 0, 0), App.Vector(0, 0, 1), 2.5),
    Part.Circle(App.Vector(-261, 0, 0), App.Vector(0, 0, 1), 2.5),
    Part.Circle(App.Vector(261, 0, 0), App.Vector(0, 0, 1), 2.5),
    Part.Circle(App.Vector(321, 0, 0), App.Vector(0, 0, 1), 2.5),
    Part.Circle(App.Vector(351, 0, 0), App.Vector(0, 0, 1), 2.5),
    Part.Circle(App.Vector(411, 0, 0), App.Vector(0, 0, 1), 2.5),
], False)
sketch7.addConstraint([
    Sketcher.Constraint("Equal", 0, 1),
    Sketcher.Constraint("Equal", 1, 2),
    Sketcher.Constraint("Equal", 2, 3),
    Sketcher.Constraint("Equal", 3, 4),
    Sketcher.Constraint("Equal", 4, 5),
    Sketcher.Constraint("Equal", 5, 6),
    Sketcher.Constraint("Equal", 6, 7),
    Sketcher.Constraint("Symmetric", 3, 3, 4, 3, -1, 1),
    Sketcher.Constraint("Symmetric", 2, 3, 5, 3, -1, 1),
    Sketcher.Constraint("Symmetric", 1, 3, 6, 3, -1, 1),
    Sketcher.Constraint("Symmetric", 0, 3, 7, 3, -1, 1),
    Sketcher.Constraint("PointOnObject", 0, 3, -1),
    Sketcher.Constraint("PointOnObject", 1, 3, -1),
    Sketcher.Constraint("PointOnObject", 2, 3, -1),
    Sketcher.Constraint("PointOnObject", 3, 3, -1),
    Sketcher.Constraint("Diameter", 0, 5.0),
    Sketcher.Constraint("DistanceX", 0, 3, -1, 1, 411.0),
    Sketcher.Constraint("DistanceX", 1, 3, -1, 1, 351.0),
    Sketcher.Constraint("DistanceX", 2, 3, -1, 1, 321.0),
    Sketcher.Constraint("DistanceX", 3, 3, -1, 1, 261.0),
])
doc.recompute()
hole3 = doc.addObject("PartDesign::Hole", "Hole002")
body.addObject(hole3)
hole3.Profile = sketch7
hole3.ThreadType = "None"
hole3.Diameter = 5
hole3.DepthType = "Dimension"
hole3.Depth = 15
hole3.DrillPoint = "Angled"
hole3.DrillPointAngle = 118
hole3.Reversed = True

sketch8 = doc.addObject("Sketcher::SketchObject", "Sketch007")
body.addObject(sketch8)
sketch8.AttachmentSupport = (doc.XY_Plane, [""])
sketch8.MapMode = "FlatFace"
sketch8.AttachmentOffset = App.Placement(App.Vector(0, 0, -15), App.Rotation())
sketch8.addGeometry([
    Part.Circle(App.Vector(-691, 0, 0), App.Vector(0, 0, 1), 2.5),
    Part.Circle(App.Vector(691, 0, 0), App.Vector(0, 0, 1), 2.5),
], False)
sketch8.addConstraint([
    Sketcher.Constraint("Equal", 0, 1),
    Sketcher.Constraint("Symmetric", 0, 3, 1, 3, -1, 1),
    Sketcher.Constraint("PointOnObject", 0, 3, -1),
    Sketcher.Constraint("Diameter", 0, 5.0),
    Sketcher.Constraint("DistanceX", 0, 3, -1, 1, 691.0),
])
doc.recompute()
hole4 = doc.addObject("PartDesign::Hole", "Hole003")
body.addObject(hole4)
hole4.Profile = sketch8
hole4.ThreadType = "None"
hole4.Diameter = 5
hole4.DepthType = "Dimension"
hole4.Depth = 15
hole4.DrillPoint = "Angled"
hole4.DrillPointAngle = 118
hole4.Reversed = True

sketch9 = doc.addObject("Sketcher::SketchObject", "Sketch008")
body.addObject(sketch9)
sketch9.AttachmentSupport = (doc.XY_Plane, [""])
sketch9.MapMode = "FlatFace"
sketch9.AttachmentOffset = App.Placement(App.Vector(0, 0, -15), App.Rotation())
sketch9.addGeometry([
    Part.Circle(App.Vector(-691, 0, 0), App.Vector(0, 0, 1), 4.5),
    Part.Circle(App.Vector(691, 0, 0), App.Vector(0, 0, 1), 4.5),
], False)
sketch9.addConstraint([
    Sketcher.Constraint("Equal", 0, 1),
    Sketcher.Constraint("Symmetric", 0, 3, 1, 3, -1, 1),
    Sketcher.Constraint("PointOnObject", 0, 3, -1),
    Sketcher.Constraint("Diameter", 0, 9.0),
    Sketcher.Constraint("DistanceX", 0, 3, -1, 1, 691.0),
])
pocket4 = doc.addObject("PartDesign::Pocket", "Pocket003")
body.addObject(pocket4)
pocket4.Profile = sketch9
pocket4.Type = "ThroughAll"
pocket4.Reversed = True

doc.recompute()
